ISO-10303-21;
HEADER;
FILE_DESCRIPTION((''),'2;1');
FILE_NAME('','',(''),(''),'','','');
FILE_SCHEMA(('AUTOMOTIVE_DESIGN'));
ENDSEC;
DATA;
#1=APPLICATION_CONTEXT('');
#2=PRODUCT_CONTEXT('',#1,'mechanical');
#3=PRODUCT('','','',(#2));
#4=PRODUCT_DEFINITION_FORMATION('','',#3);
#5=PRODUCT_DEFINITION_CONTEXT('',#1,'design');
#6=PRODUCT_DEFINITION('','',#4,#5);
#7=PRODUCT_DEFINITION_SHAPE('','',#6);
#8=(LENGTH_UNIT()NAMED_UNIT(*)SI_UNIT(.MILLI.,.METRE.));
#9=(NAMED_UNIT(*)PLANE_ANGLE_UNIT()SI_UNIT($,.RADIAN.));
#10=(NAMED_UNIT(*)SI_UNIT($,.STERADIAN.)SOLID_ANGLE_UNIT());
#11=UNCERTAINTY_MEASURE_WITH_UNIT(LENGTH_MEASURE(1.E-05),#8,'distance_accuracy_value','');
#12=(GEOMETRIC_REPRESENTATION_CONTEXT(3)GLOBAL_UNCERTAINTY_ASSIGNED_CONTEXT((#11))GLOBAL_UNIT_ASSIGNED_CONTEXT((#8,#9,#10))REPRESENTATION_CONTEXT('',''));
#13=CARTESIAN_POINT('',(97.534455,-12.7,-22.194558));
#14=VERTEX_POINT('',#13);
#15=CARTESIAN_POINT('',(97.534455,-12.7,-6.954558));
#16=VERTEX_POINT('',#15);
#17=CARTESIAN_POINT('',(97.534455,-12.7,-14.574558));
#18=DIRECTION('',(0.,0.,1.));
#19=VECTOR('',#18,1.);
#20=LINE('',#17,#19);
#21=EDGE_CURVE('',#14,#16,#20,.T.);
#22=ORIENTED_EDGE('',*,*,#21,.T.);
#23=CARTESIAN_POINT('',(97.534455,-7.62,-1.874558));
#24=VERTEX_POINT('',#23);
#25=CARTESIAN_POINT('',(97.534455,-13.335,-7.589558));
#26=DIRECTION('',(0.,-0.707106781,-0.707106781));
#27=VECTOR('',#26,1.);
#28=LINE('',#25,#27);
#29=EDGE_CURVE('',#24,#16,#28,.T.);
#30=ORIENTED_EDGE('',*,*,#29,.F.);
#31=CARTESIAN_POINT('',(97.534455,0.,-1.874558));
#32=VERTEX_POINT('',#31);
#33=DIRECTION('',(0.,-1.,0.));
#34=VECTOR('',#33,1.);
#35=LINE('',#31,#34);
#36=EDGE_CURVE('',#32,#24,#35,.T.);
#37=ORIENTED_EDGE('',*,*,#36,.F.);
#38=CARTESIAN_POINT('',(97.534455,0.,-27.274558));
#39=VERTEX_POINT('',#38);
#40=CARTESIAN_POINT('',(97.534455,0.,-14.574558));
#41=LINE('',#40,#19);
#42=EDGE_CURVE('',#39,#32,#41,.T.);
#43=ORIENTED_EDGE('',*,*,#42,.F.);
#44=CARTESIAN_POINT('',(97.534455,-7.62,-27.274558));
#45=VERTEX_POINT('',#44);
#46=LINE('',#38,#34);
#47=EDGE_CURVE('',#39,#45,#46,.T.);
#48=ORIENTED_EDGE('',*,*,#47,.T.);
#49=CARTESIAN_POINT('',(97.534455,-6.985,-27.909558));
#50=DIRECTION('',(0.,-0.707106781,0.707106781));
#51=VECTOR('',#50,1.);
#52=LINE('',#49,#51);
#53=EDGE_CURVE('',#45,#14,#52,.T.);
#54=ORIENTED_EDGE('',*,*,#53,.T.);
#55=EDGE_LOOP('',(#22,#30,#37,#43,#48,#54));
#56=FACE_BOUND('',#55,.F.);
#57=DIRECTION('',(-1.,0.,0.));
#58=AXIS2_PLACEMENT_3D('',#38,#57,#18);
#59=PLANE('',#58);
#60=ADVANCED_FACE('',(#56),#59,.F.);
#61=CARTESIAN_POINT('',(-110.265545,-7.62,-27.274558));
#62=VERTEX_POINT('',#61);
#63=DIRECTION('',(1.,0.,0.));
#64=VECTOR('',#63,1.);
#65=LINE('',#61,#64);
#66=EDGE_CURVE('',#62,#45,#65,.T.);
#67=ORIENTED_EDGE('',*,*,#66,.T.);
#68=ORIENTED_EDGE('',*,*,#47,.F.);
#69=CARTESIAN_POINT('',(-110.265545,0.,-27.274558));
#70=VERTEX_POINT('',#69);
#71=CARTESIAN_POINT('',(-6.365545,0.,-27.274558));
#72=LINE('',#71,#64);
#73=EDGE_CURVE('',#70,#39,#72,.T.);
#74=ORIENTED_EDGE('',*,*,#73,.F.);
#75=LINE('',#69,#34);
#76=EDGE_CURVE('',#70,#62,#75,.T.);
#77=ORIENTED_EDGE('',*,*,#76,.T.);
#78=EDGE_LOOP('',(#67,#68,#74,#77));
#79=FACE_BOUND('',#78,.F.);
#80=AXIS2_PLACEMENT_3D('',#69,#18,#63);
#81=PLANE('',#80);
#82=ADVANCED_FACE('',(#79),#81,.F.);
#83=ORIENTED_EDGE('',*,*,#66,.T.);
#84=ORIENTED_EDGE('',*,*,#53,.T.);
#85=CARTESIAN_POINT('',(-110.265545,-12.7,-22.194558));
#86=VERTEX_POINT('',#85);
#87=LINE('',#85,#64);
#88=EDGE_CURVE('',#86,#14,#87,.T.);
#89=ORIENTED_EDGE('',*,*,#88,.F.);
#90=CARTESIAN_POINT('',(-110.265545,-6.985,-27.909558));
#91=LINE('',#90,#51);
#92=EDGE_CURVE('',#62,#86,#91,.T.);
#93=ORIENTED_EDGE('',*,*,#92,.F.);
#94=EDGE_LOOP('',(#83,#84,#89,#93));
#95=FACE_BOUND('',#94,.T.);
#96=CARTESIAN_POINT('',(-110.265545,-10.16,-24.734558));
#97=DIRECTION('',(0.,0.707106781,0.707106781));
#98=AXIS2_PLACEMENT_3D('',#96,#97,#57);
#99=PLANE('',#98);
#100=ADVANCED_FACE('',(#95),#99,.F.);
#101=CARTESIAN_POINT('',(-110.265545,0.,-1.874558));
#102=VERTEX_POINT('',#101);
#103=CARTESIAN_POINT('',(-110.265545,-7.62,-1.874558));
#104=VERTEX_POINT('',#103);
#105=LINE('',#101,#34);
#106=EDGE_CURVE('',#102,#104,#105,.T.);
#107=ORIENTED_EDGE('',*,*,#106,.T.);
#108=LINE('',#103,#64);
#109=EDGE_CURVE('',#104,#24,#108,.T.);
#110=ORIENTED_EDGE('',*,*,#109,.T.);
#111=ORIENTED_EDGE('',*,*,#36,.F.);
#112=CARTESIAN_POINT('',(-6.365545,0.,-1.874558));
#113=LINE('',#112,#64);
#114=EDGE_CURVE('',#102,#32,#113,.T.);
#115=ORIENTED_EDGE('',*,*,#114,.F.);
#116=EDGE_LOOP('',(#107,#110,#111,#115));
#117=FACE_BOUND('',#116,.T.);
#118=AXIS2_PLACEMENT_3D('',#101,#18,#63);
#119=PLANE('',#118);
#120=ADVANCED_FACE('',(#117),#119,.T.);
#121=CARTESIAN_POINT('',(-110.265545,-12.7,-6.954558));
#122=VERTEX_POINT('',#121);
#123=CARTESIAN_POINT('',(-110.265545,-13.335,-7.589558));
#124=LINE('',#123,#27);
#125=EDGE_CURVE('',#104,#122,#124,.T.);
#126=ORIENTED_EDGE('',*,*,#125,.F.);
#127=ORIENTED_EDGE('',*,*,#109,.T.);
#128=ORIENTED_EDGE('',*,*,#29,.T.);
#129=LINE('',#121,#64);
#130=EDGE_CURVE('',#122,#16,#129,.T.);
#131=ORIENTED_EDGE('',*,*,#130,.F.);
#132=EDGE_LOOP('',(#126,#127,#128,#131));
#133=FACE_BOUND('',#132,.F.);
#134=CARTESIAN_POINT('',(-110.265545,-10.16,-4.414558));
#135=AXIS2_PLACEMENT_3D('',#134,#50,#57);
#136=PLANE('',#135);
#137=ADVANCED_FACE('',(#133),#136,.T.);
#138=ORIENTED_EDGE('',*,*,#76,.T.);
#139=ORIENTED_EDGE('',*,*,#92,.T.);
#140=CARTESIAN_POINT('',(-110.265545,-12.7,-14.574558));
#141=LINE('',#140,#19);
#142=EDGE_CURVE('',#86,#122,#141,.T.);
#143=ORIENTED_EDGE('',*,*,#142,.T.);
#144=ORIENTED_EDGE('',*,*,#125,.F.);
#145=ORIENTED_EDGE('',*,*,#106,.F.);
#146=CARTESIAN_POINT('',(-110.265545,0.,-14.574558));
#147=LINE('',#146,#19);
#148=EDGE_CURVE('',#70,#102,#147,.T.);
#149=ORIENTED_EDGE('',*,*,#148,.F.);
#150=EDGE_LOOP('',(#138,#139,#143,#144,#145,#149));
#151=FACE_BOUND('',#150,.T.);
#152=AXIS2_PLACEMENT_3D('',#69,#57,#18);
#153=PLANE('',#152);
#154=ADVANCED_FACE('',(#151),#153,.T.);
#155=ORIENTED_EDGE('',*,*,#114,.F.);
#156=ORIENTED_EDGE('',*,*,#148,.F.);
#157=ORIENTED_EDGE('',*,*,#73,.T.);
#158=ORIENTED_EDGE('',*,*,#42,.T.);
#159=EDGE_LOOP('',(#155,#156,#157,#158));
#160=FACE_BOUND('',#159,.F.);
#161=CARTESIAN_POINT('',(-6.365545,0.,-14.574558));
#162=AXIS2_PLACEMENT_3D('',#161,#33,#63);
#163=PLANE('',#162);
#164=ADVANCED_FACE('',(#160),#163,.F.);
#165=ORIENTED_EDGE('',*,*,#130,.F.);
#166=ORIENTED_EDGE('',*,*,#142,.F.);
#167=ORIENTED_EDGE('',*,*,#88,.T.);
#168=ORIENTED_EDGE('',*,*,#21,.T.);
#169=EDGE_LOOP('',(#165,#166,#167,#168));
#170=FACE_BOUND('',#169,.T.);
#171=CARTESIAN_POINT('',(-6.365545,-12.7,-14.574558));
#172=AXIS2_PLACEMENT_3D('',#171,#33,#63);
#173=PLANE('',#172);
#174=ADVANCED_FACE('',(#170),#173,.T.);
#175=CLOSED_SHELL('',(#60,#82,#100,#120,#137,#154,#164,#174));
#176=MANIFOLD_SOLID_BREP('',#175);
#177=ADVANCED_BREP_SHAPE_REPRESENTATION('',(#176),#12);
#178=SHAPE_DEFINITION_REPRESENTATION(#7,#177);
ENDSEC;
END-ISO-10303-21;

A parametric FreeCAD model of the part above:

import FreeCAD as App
import Part
import Sketcher

V = App.Vector
Q = App.Units.Quantity


def edges_at(feature, points):
    """Names of the edges that pass closest to the given points."""
    edges = feature.Shape.Edges
    near = lambda p: min(range(len(edges)), key=lambda i: edges[i].distToShape(Part.Vertex(*p))[0])
    return sorted({f"Edge{near(p) + 1}" for p in points})

doc = App.newDocument("Part")
params = doc.addObject("Spreadsheet::Sheet", "Params")
for row, (alias, value) in enumerate([
    ("sketch1_height", "1 in"),
    ("pad1_length", "0.5 in"),
    ("chamfer_size", "0.2 in"),
], start=1):
    params.set(f"A{row}", alias)
    params.set(f"B{row}", "=" + value)
    params.setAlias(f"B{row}", alias)

body = doc.addObject("PartDesign::Body", "Body")

# Sketch on XZ plane
sketch1 = doc.addObject("Sketcher::SketchObject", "Sketch")
body.addObject(sketch1)
sketch1.AttachmentSupport = (doc.XZ_Plane, [""])
sketch1.MapMode = "FlatFace"
sketch1.addGeometry([
    Part.LineSegment(V(-110, -2, 0), V(-110, -27, 0)),
    Part.LineSegment(V(-110, -27, 0), V(98, -27, 0)),
    Part.LineSegment(V(98, -27, 0), V(98, -2, 0)),
    Part.LineSegment(V(98, -2, 0), V(-110, -2, 0)),
], False)
sketch1.addConstraint([
    Sketcher.Constraint("Coincident", 0, 2, 1, 1),
    Sketcher.Constraint("Coincident", 1, 2, 2, 1),
    Sketcher.Constraint("Coincident", 2, 2, 3, 1),
    Sketcher.Constraint("Coincident", 3, 2, 0, 1),
    Sketcher.Constraint("Vertical", 0),
    Sketcher.Constraint("Horizontal", 1),
    Sketcher.Constraint("Vertical", 2),
    Sketcher.Constraint("Horizontal", 3),
    Sketcher.Constraint("DistanceY", 0, 2, 0, 1, Q("1 in")),
    Sketcher.Constraint("DistanceX", 1, 1, 1, 2, Q("207.8 mm")),
    Sketcher.Constraint("DistanceX", 0, 2, -1, 1, Q("110.265545 mm")),
    Sketcher.Constraint("DistanceY", 0, 2, -1, 1, Q("27.274558 mm")),
])
sketch1.setExpression("Constraints[8]", "Params.sketch1_height")
pad1 = doc.addObject("PartDesign::Pad", "Pad")
body.addObject(pad1)
pad1.Profile = sketch1
pad1.setExpression("Length", "Params.pad1_length")
doc.recompute()

chamfer = doc.addObject("PartDesign::Chamfer", "Chamfer")
body.addObject(chamfer)
chamfer.Base = (pad1, edges_at(pad1, [(-6.366, -12.7, -1.875), (-6.366, -12.7, -27.275)]))
chamfer.setExpression("Size", "Params.chamfer_size")

doc.recompute()
